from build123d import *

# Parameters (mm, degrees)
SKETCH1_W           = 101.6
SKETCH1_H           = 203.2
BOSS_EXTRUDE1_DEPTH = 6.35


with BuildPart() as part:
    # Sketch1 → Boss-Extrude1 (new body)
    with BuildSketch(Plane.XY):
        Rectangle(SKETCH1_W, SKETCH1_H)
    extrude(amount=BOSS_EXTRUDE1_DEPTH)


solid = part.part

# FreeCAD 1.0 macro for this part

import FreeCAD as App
import Part
import Sketcher
Q = App.Units.Quantity

doc = App.newDocument("Part")
params = doc.addObject("Spreadsheet::Sheet", "Params")
for row, (alias, value) in enumerate([
    ("sketch1_width", "4 in"),
    ("sketch1_height", "8 in"),
    ("pad1_length", "0.25 in"),
], start=1):
    params.set(f"A{row}", alias)
    params.set(f"B{row}", "=" + value)
    params.setAlias(f"B{row}", alias)

body = doc.addObject("PartDesign::Body", "Body")

# Sketch on XY plane
sketch1 = body.newObject("Sketcher::SketchObject", "Sketch")
sketch1.AttachmentSupport = (doc.getObject("XY_Plane"), [""])
sketch1.MapMode = "FlatFace"
sketch1.addGeometry(Part.LineSegment(App.Vector(-51, 102, 0), App.Vector(-51, -102, 0)), False)
sketch1.addGeometry(Part.LineSegment(App.Vector(-51, -102, 0), App.Vector(51, -102, 0)), False)
sketch1.addGeometry(Part.LineSegment(App.Vector(51, -102, 0), App.Vector(51, 102, 0)), False)
sketch1.addGeometry(Part.LineSegment(App.Vector(51, 102, 0), App.Vector(-51, 102, 0)), False)
sketch1.addConstraint(Sketcher.Constraint("Coincident", 0, 2, 1, 1))
sketch1.addConstraint(Sketcher.Constraint("Coincident", 1, 2, 2, 1))
sketch1.addConstraint(Sketcher.Constraint("Coincident", 2, 2, 3, 1))
sketch1.addConstraint(Sketcher.Constraint("Coincident", 3, 2, 0, 1))
sketch1.addConstraint(Sketcher.Constraint("Vertical", 0))
sketch1.addConstraint(Sketcher.Constraint("Horizontal", 1))
sketch1.addConstraint(Sketcher.Constraint("Vertical", 2))
sketch1.addConstraint(Sketcher.Constraint("Horizontal", 3))
sketch1.addConstraint(Sketcher.Constraint("Symmetric", 0, 2, 2, 2, -1, 1))
sketch1.addConstraint(Sketcher.Constraint("DistanceX", 1, 1, 1, 2, Q("4 in")))
sketch1.addConstraint(Sketcher.Constraint("DistanceY", 0, 2, 0, 1, Q("8 in")))
sketch1.setExpression("Constraints[9]", "Params.sketch1_width")
sketch1.setExpression("Constraints[10]", "Params.sketch1_height")
pad1 = body.newObject("PartDesign::Pad", "Pad")
pad1.Profile = sketch1
pad1.setExpression("Length", "Params.pad1_length")

doc.recompute()
